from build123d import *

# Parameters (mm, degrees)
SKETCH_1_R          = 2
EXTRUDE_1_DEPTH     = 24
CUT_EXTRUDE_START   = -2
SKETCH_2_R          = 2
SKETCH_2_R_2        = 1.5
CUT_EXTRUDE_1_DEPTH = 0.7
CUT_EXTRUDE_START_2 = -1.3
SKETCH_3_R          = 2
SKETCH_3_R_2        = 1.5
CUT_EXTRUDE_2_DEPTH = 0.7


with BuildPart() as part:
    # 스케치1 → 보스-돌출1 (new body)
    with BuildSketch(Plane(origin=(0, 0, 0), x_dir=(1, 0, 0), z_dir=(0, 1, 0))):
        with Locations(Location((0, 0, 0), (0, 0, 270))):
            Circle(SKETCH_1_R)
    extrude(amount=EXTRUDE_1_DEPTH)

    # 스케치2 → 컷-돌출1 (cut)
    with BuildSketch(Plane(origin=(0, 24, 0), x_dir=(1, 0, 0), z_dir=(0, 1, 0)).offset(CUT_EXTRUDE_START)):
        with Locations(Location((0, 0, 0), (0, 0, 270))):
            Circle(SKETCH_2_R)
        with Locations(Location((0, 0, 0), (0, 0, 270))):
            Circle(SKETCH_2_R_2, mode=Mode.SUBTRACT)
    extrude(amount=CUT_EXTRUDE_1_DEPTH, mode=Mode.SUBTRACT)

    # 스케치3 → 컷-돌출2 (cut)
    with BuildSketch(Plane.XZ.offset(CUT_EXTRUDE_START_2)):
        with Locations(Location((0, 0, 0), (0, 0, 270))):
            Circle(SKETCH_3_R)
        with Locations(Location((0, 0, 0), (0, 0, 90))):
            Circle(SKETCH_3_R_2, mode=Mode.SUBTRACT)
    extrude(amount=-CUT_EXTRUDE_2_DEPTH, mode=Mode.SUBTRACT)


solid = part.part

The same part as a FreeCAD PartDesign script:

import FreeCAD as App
import Part
import Sketcher

V = App.Vector

doc = App.newDocument("Part")
body = doc.addObject("PartDesign::Body", "Body")

# Sketch on XZ plane
sketch1 = body.newObject("Sketcher::SketchObject", "Sketch")
sketch1.AttachmentSupport = (doc.getObject("XZ_Plane"), [""])
sketch1.MapMode = "FlatFace"
sketch1.addGeometry(Part.Circle(V(0, 0, 0), V(0, 0, 1), 2), False)
sketch1.addConstraint(Sketcher.Constraint("Coincident", 0, 3, -1, 1))
sketch1.addConstraint(Sketcher.Constraint("Diameter", 0, 4.0))
pad1 = body.newObject("PartDesign::Pad", "Pad")
pad1.Profile = sketch1
pad1.Length = 24
pad1.Reversed = True

# Sketch on XZ plane
sketch2 = body.newObject("Sketcher::SketchObject", "Sketch001")
sketch2.AttachmentSupport = (doc.getObject("XZ_Plane"), [""])
sketch2.MapMode = "FlatFace"
sketch2.AttachmentOffset = App.Placement(V(0, 0, -22), App.Rotation())
sketch2.addGeometry(Part.Circle(V(0, 0, 0), V(0, 0, 1), 2), False)
sketch2.addGeometry(Part.Circle(V(0, 0, 0), V(0, 0, 1), 1.5), False)
sketch2.addConstraint(Sketcher.Constraint("Coincident", 0, 3, -1, 1))
sketch2.addConstraint(Sketcher.Constraint("Coincident", 1, 3, -1, 1))
sketch2.addConstraint(Sketcher.Constraint("Diameter", 0, 4.0))
sketch2.addConstraint(Sketcher.Constraint("Diameter", 1, 3.0))
pocket1 = body.newObject("PartDesign::Pocket", "Pocket")
pocket1.Profile = sketch2
pocket1.Length = 0.7

# Sketch on XZ plane
sketch3 = body.newObject("Sketcher::SketchObject", "Sketch002")
sketch3.AttachmentSupport = (doc.getObject("XZ_Plane"), [""])
sketch3.MapMode = "FlatFace"
sketch3.AttachmentOffset = App.Placement(V(0, 0, -1.3), App.Rotation())
sketch3.addGeometry(Part.Circle(V(0, 0, 0), V(0, 0, 1), 2), False)
sketch3.addGeometry(Part.Circle(V(0, 0, 0), V(0, 0, 1), 1.5), False)
sketch3.addConstraint(Sketcher.Constraint("Coincident", 0, 3, -1, 1))
sketch3.addConstraint(Sketcher.Constraint("Coincident", 1, 3, -1, 1))
sketch3.addConstraint(Sketcher.Constraint("Diameter", 0, 4.0))
sketch3.addConstraint(Sketcher.Constraint("Diameter", 1, 3.0))
pocket2 = body.newObject("PartDesign::Pocket", "Pocket001")
pocket2.Profile = sketch3
pocket2.Length = 0.7

doc.recompute()
